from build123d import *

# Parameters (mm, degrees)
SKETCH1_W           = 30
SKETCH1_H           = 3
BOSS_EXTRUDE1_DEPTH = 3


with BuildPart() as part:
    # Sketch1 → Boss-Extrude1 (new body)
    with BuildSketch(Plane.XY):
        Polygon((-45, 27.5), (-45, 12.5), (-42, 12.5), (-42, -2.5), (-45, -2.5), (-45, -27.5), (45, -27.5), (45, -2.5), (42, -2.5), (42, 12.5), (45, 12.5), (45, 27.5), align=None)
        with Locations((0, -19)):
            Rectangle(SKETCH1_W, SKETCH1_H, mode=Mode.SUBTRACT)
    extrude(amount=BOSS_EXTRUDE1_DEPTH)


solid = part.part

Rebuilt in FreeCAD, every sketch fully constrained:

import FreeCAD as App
import Part
import Sketcher

doc = App.newDocument("Part")
params = doc.addObject("Spreadsheet::Sheet", "Params")
for row, (alias, value) in enumerate([
    ("sketch1_width", "3 mm"),
    ("sketch1_width2", "90 mm"),
    ("sketch1_width3", "30 mm"),
    ("sketch1_height", "15 mm"),
    ("sketch1_height2", "25 mm"),
    ("pad1_length", "3 mm"),
], start=1):
    params.set(f"A{row}", alias)
    params.set(f"B{row}", "=" + value)
    params.setAlias(f"B{row}", alias)

body = doc.addObject("PartDesign::Body", "Body")

sketch1 = body.newObject("Sketcher::SketchObject", "Sketch")
sketch1.AttachmentSupport = (doc.getObject("XY_Plane"), [""])
sketch1.MapMode = "FlatFace"
sketch1.addGeometry([
    Part.LineSegment(App.Vector(-45, 27.5, 0), App.Vector(-45, 12.5, 0)),
    Part.LineSegment(App.Vector(-45, 12.5, 0), App.Vector(-42, 12.5, 0)),
    Part.LineSegment(App.Vector(-42, 12.5, 0), App.Vector(-42, -2.5, 0)),
    Part.LineSegment(App.Vector(-42, -2.5, 0), App.Vector(-45, -2.5, 0)),
    Part.LineSegment(App.Vector(-45, -2.5, 0), App.Vector(-45, -27.5, 0)),
    Part.LineSegment(App.Vector(-45, -27.5, 0), App.Vector(45, -27.5, 0)),
    Part.LineSegment(App.Vector(45, -27.5, 0), App.Vector(45, -2.5, 0)),
    Part.LineSegment(App.Vector(45, -2.5, 0), App.Vector(42, -2.5, 0)),
    Part.LineSegment(App.Vector(42, -2.5, 0), App.Vector(42, 12.5, 0)),
    Part.LineSegment(App.Vector(42, 12.5, 0), App.Vector(45, 12.5, 0)),
    Part.LineSegment(App.Vector(45, 12.5, 0), App.Vector(45, 27.5, 0)),
    Part.LineSegment(App.Vector(45, 27.5, 0), App.Vector(-45, 27.5, 0)),
    Part.LineSegment(App.Vector(15, -20.5, 0), App.Vector(-15, -20.5, 0)),
    Part.LineSegment(App.Vector(-15, -20.5, 0), App.Vector(-15, -17.5, 0)),
    Part.LineSegment(App.Vector(-15, -17.5, 0), App.Vector(15, -17.5, 0)),
    Part.LineSegment(App.Vector(15, -17.5, 0), App.Vector(15, -20.5, 0)),
], False)
sketch1.addConstraint([
    Sketcher.Constraint("Coincident", 0, 2, 1, 1),
    Sketcher.Constraint("Coincident", 1, 2, 2, 1),
    Sketcher.Constraint("Coincident", 2, 2, 3, 1),
    Sketcher.Constraint("Coincident", 3, 2, 4, 1),
    Sketcher.Constraint("Coincident", 4, 2, 5, 1),
    Sketcher.Constraint("Coincident", 5, 2, 6, 1),
    Sketcher.Constraint("Coincident", 6, 2, 7, 1),
    Sketcher.Constraint("Coincident", 7, 2, 8, 1),
    Sketcher.Constraint("Coincident", 8, 2, 9, 1),
    Sketcher.Constraint("Coincident", 9, 2, 10, 1),
    Sketcher.Constraint("Coincident", 10, 2, 11, 1),
    Sketcher.Constraint("Coincident", 11, 2, 0, 1),
    Sketcher.Constraint("Coincident", 12, 2, 13, 1),
    Sketcher.Constraint("Coincident", 13, 2, 14, 1),
    Sketcher.Constraint("Coincident", 14, 2, 15, 1),
    Sketcher.Constraint("Coincident", 15, 2, 12, 1),
    Sketcher.Constraint("Vertical", 0),
    Sketcher.Constraint("Horizontal", 1),
    Sketcher.Constraint("Vertical", 2),
    Sketcher.Constraint("Horizontal", 3),
    Sketcher.Constraint("Vertical", 4),
    Sketcher.Constraint("Horizontal", 5),
    Sketcher.Constraint("Vertical", 6),
    Sketcher.Constraint("Horizontal", 7),
    Sketcher.Constraint("Vertical", 8),
    Sketcher.Constraint("Horizontal", 9),
    Sketcher.Constraint("Vertical", 10),
    Sketcher.Constraint("Horizontal", 11),
    Sketcher.Constraint("Horizontal", 12),
    Sketcher.Constraint("Vertical", 13),
    Sketcher.Constraint("Horizontal", 14),
    Sketcher.Constraint("Vertical", 15),
    Sketcher.Constraint("Symmetric", 4, 2, 10, 2, -1, 1),
    Sketcher.Constraint("Symmetric", 3, 2, 6, 2, -2),
    Sketcher.Constraint("Symmetric", 1, 2, 8, 2, -2),
    Sketcher.Constraint("Vertical", 0, 2, 3, 2),
    Sketcher.Constraint("Equal", 0, 2),
    Sketcher.Constraint("Equal", 9, 13),
    Sketcher.Constraint("DistanceX", 1, 1, 1, 2, 3.0),
    Sketcher.Constraint("DistanceX", 5, 1, 5, 2, 90.0),
    Sketcher.Constraint("DistanceX", 12, 2, 12, 1, 30.0),
    Sketcher.Constraint("DistanceY", 0, 2, 0, 1, 15.0),
    Sketcher.Constraint("DistanceY", 4, 2, 4, 1, 25.0),
    Sketcher.Constraint("DistanceX", 12, 2, -1, 1, 15.0),
    Sketcher.Constraint("DistanceY", 4, 2, 12, 2, 7.0),
])
sketch1.setExpression("Constraints[38]", "Params.sketch1_width")
sketch1.setExpression("Constraints[39]", "Params.sketch1_width2")
sketch1.setExpression("Constraints[40]", "Params.sketch1_width3")
sketch1.setExpression("Constraints[41]", "Params.sketch1_height")
sketch1.setExpression("Constraints[42]", "Params.sketch1_height2")
pad1 = body.newObject("PartDesign::Pad", "Pad")
pad1.Profile = sketch1
pad1.setExpression("Length", "Params.pad1_length")

doc.recompute()
